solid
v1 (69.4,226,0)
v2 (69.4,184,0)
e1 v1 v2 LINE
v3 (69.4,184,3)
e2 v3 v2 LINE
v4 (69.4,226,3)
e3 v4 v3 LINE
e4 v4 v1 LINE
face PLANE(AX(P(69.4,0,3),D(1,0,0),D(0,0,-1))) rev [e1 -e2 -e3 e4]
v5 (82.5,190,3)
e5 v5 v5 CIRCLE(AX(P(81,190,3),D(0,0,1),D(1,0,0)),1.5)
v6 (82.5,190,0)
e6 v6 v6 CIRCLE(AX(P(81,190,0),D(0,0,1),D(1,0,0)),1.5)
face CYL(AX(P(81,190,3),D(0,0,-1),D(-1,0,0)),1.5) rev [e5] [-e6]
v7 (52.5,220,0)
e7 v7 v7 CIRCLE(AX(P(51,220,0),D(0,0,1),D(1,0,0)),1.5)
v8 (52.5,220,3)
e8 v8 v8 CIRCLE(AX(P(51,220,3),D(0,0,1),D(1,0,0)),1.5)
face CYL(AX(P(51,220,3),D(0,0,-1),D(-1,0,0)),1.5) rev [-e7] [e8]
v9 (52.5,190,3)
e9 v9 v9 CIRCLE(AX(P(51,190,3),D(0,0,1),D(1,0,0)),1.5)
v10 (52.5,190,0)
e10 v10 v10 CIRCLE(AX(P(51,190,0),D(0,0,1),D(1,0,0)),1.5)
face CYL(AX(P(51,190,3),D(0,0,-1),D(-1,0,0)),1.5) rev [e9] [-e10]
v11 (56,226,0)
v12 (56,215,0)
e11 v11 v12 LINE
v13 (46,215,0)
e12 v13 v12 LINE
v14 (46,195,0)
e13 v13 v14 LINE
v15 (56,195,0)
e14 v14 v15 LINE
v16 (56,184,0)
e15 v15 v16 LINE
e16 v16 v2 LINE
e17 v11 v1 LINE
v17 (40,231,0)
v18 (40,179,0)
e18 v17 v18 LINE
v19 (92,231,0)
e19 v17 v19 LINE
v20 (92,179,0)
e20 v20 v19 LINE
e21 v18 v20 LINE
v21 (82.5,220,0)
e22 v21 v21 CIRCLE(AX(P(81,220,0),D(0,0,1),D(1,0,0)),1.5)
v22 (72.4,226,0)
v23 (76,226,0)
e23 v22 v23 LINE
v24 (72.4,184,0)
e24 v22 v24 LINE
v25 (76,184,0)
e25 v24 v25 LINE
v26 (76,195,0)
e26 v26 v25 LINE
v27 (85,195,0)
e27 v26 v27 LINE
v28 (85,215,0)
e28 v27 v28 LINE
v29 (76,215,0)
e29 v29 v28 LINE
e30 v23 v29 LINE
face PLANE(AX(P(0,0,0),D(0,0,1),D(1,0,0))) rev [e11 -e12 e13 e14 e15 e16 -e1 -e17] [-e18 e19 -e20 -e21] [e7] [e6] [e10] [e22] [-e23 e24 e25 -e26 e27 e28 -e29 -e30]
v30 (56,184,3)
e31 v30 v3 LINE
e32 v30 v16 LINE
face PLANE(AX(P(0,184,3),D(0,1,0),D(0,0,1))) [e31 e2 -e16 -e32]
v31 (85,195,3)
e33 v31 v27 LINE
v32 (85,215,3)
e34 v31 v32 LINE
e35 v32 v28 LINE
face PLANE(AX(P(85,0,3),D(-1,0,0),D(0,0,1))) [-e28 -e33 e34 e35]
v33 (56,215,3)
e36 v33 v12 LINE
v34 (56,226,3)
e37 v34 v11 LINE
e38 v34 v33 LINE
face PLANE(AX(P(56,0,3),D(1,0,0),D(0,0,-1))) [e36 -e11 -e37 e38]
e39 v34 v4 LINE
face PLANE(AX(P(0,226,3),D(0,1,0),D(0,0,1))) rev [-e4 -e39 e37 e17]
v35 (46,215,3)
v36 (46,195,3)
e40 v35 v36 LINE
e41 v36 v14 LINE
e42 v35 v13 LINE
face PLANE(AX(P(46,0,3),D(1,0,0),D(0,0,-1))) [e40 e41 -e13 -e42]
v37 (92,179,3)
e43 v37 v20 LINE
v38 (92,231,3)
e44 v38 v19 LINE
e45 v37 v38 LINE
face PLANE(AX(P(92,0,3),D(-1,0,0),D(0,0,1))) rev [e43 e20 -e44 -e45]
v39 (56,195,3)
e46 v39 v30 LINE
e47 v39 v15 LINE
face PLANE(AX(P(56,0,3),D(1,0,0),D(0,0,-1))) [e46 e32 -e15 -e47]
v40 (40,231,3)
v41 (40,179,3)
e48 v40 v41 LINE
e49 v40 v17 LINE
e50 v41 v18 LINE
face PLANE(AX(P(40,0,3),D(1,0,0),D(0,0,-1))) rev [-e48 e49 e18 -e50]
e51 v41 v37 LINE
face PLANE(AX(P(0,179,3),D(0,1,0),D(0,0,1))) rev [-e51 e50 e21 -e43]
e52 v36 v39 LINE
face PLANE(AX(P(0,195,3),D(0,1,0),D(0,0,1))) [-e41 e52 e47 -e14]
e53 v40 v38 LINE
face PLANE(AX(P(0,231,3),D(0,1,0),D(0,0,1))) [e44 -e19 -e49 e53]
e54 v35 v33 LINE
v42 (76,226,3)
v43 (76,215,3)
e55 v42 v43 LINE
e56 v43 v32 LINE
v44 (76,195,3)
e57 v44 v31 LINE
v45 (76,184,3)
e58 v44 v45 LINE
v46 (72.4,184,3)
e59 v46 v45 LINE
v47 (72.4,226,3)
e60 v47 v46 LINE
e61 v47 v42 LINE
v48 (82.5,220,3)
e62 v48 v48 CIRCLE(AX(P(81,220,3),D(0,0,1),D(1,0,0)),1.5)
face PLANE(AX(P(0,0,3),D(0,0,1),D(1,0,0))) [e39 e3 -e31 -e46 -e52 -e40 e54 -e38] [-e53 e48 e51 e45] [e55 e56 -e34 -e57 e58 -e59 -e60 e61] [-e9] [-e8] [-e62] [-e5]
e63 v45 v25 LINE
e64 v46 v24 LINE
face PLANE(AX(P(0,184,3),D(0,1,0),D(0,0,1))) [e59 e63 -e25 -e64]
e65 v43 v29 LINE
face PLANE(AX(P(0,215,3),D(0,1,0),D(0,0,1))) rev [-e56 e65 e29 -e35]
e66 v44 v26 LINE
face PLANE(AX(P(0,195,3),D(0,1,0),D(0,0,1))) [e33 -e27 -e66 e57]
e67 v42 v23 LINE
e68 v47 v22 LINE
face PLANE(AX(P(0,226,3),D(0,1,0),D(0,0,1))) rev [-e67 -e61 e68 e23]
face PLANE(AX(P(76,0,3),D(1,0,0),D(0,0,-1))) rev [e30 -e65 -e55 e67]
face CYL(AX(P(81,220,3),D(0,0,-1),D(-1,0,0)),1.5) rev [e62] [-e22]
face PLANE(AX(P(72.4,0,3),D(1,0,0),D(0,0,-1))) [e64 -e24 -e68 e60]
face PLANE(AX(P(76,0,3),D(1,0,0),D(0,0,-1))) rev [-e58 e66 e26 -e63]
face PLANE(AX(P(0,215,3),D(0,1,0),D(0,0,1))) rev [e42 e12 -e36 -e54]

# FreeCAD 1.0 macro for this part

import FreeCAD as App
import Part
import Sketcher

V = App.Vector


def add_polygon(sketch, points):
    """Adds a closed chain of lines whose ends are joined by coincident constraints."""
    first, n = sketch.GeometryCount, len(points)
    for a, b in zip(points, points[1:] + points[:1]):
        sketch.addGeometry(Part.LineSegment(App.Vector(*a, 0), App.Vector(*b, 0)), False)
    for i in range(n):
        sketch.addConstraint(Sketcher.Constraint("Coincident", first + i, 2, first + (i + 1) % n, 1))

doc = App.newDocument("Part")
params = doc.addObject("Spreadsheet::Sheet", "Params")
for row, (alias, value) in enumerate([
    ("sketch1_diameter", "3 mm"),
    ("sketch1_width", "52 mm"),
    ("sketch1_width2", "10 mm"),
    ("sketch1_width3", "9 mm"),
    ("sketch1_height", "11 mm"),
    ("pad1_length", "3 mm"),
], start=1):
    params.set(f"A{row}", alias)
    params.set(f"B{row}", "=" + value)
    params.setAlias(f"B{row}", alias)

body = doc.addObject("PartDesign::Body", "Body")

# Sketch on XY plane
sketch1 = doc.addObject("Sketcher::SketchObject", "Sketch")
body.addObject(sketch1)
sketch1.AttachmentSupport = (doc.XY_Plane, [""])
sketch1.MapMode = "FlatFace"
add_polygon(sketch1, [(40, 231), (40, 179), (92, 179), (92, 231)])  # lines 0-3
sketch1.addGeometry(Part.Circle(V(51, 190, 0), V(0, 0, 1), 1.5), False)  # 4
sketch1.addGeometry(Part.Circle(V(81, 190, 0), V(0, 0, 1), 1.5), False)  # 5
add_polygon(sketch1, [(56, 215), (56, 226), (69.4, 226), (69.4, 184), (56, 184), (56, 195), (46, 195), (46, 215)])  # lines 6-13
sketch1.addGeometry(Part.Circle(V(51, 220, 0), V(0, 0, 1), 1.5), False)  # 14
add_polygon(sketch1, [(72.4, 184), (72.4, 226), (76, 226), (76, 215), (85, 215), (85, 195), (76, 195), (76, 184)])  # lines 15-22
sketch1.addGeometry(Part.Circle(V(81, 220, 0), V(0, 0, 1), 1.5), False)  # 23
sketch1.addConstraint([
    Sketcher.Constraint("Vertical", 0),
    Sketcher.Constraint("Horizontal", 1),
    Sketcher.Constraint("Vertical", 2),
    Sketcher.Constraint("Horizontal", 3),
    Sketcher.Constraint("Vertical", 6),
    Sketcher.Constraint("Horizontal", 7),
    Sketcher.Constraint("Vertical", 8),
    Sketcher.Constraint("Horizontal", 9),
    Sketcher.Constraint("Vertical", 10),
    Sketcher.Constraint("Horizontal", 11),
    Sketcher.Constraint("Vertical", 12),
    Sketcher.Constraint("Horizontal", 13),
    Sketcher.Constraint("Vertical", 15),
    Sketcher.Constraint("Horizontal", 16),
    Sketcher.Constraint("Vertical", 17),
    Sketcher.Constraint("Horizontal", 18),
    Sketcher.Constraint("Vertical", 19),
    Sketcher.Constraint("Horizontal", 20),
    Sketcher.Constraint("Vertical", 21),
    Sketcher.Constraint("Horizontal", 22),
    Sketcher.Constraint("Equal", 4, 5),
    Sketcher.Constraint("Equal", 5, 14),
    Sketcher.Constraint("Equal", 14, 23),
    Sketcher.Constraint("Horizontal", 4, 3, 5, 3),
    Sketcher.Constraint("Horizontal", 14, 3, 23, 3),
    Sketcher.Constraint("Horizontal", 7, 2, 15, 2),
    Sketcher.Constraint("Horizontal", 13, 2, 17, 2),
    Sketcher.Constraint("Horizontal", 11, 2, 19, 2),
    Sketcher.Constraint("Horizontal", 9, 2, 21, 2),
    Sketcher.Constraint("Vertical", 4, 3, 14, 3),
    Sketcher.Constraint("Vertical", 5, 3, 23, 3),
    Sketcher.Constraint("Vertical", 6, 2, 9, 2),
    Sketcher.Constraint("Vertical", 17, 2, 20, 2),
    Sketcher.Constraint("Equal", 3, 0),
    Sketcher.Constraint("Equal", 6, 10),
    Sketcher.Constraint("Diameter", 4, 3.0),
    Sketcher.Constraint("DistanceX", 1, 1, 1, 2, 52.0),
    Sketcher.Constraint("DistanceX", 11, 2, 11, 1, 10.0),
    Sketcher.Constraint("DistanceX", 18, 1, 18, 2, 9.0),
    Sketcher.Constraint("DistanceY", 6, 1, 6, 2, 11.0),
    Sketcher.Constraint("DistanceY", 8, 2, 8, 1, 42.0),
    Sketcher.Constraint("DistanceX", 7, 1, 7, 2, 13.4),
    Sketcher.Constraint("DistanceX", 16, 1, 16, 2, 3.6),
    Sketcher.Constraint("DistanceX", -1, 1, 4, 3, 51.0),
    Sketcher.Constraint("DistanceY", -1, 1, 4, 3, 190.0),
    Sketcher.Constraint("DistanceX", -1, 1, 5, 3, 81.0),
    Sketcher.Constraint("DistanceY", -1, 1, 14, 3, 220.0),
    Sketcher.Constraint("DistanceX", -1, 1, 0, 2, 40.0),
    Sketcher.Constraint("DistanceY", -1, 1, 0, 2, 179.0),
    Sketcher.Constraint("DistanceX", -1, 1, 6, 2, 56.0),
    Sketcher.Constraint("DistanceY", -1, 1, 6, 2, 226.0),
    Sketcher.Constraint("DistanceX", -1, 1, 16, 2, 76.0),
])
sketch1.setExpression("Constraints[55]", "Params.sketch1_diameter")
sketch1.setExpression("Constraints[56]", "Params.sketch1_width")
sketch1.setExpression("Constraints[57]", "Params.sketch1_width2")
sketch1.setExpression("Constraints[58]", "Params.sketch1_width3")
sketch1.setExpression("Constraints[59]", "Params.sketch1_height")
pad1 = doc.addObject("PartDesign::Pad", "Pad")
body.addObject(pad1)
pad1.Profile = sketch1
pad1.setExpression("Length", "Params.pad1_length")

doc.recompute()
